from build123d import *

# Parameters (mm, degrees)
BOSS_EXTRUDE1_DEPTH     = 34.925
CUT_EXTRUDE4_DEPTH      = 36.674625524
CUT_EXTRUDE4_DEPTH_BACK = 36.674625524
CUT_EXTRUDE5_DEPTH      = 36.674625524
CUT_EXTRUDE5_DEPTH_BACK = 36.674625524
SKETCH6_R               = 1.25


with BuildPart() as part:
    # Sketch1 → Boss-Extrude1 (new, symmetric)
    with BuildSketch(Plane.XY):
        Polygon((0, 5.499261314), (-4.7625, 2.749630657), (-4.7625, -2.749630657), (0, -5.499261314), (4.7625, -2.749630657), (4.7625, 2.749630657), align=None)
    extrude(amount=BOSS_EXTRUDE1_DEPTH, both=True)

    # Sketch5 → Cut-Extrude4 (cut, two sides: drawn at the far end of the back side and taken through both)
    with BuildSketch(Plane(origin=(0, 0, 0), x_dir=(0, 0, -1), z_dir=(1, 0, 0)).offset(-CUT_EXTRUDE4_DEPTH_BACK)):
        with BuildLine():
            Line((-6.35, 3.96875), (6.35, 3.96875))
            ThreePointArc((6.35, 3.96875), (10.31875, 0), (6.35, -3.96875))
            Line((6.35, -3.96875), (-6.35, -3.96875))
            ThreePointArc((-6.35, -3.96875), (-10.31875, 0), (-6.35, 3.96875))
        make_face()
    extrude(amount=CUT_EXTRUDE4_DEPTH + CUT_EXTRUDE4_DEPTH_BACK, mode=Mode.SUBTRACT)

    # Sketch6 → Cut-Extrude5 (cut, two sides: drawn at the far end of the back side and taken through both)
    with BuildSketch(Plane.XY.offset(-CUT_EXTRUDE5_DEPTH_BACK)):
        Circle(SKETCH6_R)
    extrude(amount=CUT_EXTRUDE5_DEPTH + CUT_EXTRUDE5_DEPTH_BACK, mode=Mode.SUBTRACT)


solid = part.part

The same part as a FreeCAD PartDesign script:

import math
import FreeCAD as App
import Part
import Sketcher

V = App.Vector
Q = App.Units.Quantity


def add_polygon(sketch, points):
    """Adds a closed chain of lines whose ends are joined by coincident constraints."""
    first, n = sketch.GeometryCount, len(points)
    for a, b in zip(points, points[1:] + points[:1]):
        sketch.addGeometry(Part.LineSegment(App.Vector(*a, 0), App.Vector(*b, 0)), False)
    for i in range(n):
        sketch.addConstraint(Sketcher.Constraint("Coincident", first + i, 2, first + (i + 1) % n, 1))

doc = App.newDocument("Part")
body = doc.addObject("PartDesign::Body", "Body")

# Sketch on XY plane
sketch1 = body.newObject("Sketcher::SketchObject", "Sketch")
sketch1.AttachmentSupport = (doc.getObject("XY_Plane"), [""])
sketch1.MapMode = "FlatFace"
add_polygon(sketch1, [(0, 5), (-5, 3), (-5, -3), (0, -5), (5, -3), (5, 3)])  # lines 0-5
sketch1.addConstraint([
    Sketcher.Constraint("Vertical", 1),
    Sketcher.Constraint("Vertical", 4),
    Sketcher.Constraint("Symmetric", 0, 2, 3, 2, -1, 1),
    Sketcher.Constraint("Symmetric", 2, 2, 5, 2, -1, 1),
    Sketcher.Constraint("PointOnObject", 2, 2, -2),
    Sketcher.Constraint("Parallel", 2, 5),
    Sketcher.Constraint("Horizontal", 1, 2, 3, 2),
    Sketcher.Constraint("Angle", 0, Q("-150 deg")),
    Sketcher.Constraint("DistanceX", 0, 2, -1, 1, Q("0.1875 in")),
    Sketcher.Constraint("DistanceY", 1, 2, 1, 1, Q("5.499261 mm")),
])
pad1 = body.newObject("PartDesign::Pad", "Pad")
pad1.Profile = sketch1
pad1.Length = Q("2.75 in")
pad1.Midplane = True

# Sketch on YZ plane
sketch2 = body.newObject("Sketcher::SketchObject", "Sketch001")
sketch2.AttachmentSupport = (doc.getObject("YZ_Plane"), [""])
sketch2.MapMode = "FlatFace"
sketch2.addGeometry([
    Part.LineSegment(V(4, -6.3, 0), V(4, 6.3, 0)),
    Part.ArcOfCircle(Part.Circle(V(0, 6.3, 0), V(0, 0, 1), 4), math.radians(0), math.radians(180)),
    Part.LineSegment(V(-4, 6.3, 0), V(-4, -6.3, 0)),
    Part.ArcOfCircle(Part.Circle(V(0, -6.3, 0), V(0, 0, 1), 4), math.radians(180), math.radians(360)),
], False)
sketch2.addConstraint([
    Sketcher.Constraint("Tangent", 0, 2, 1, 1),
    Sketcher.Constraint("Tangent", 1, 2, 2, 1),
    Sketcher.Constraint("Tangent", 2, 2, 3, 1),
    Sketcher.Constraint("Tangent", 3, 2, 0, 1),
    Sketcher.Constraint("Vertical", 0),
    Sketcher.Constraint("Vertical", 2),
    Sketcher.Constraint("Symmetric", 1, 3, 3, 3, -1, 1),
    Sketcher.Constraint("DistanceY", 0, 1, 0, 2, Q("0.5 in")),
    Sketcher.Constraint("Radius", 1, Q("0.15625 in")),
])
pocket1 = body.newObject("PartDesign::Pocket", "Pocket")
pocket1.Profile = sketch2
pocket1.Type = "ThroughAll"
pocket1.Midplane = True

# Sketch on XY plane
sketch3 = body.newObject("Sketcher::SketchObject", "Sketch002")
sketch3.AttachmentSupport = (doc.getObject("XY_Plane"), [""])
sketch3.MapMode = "FlatFace"
sketch3.addGeometry(Part.Circle(V(0, 0, 0), V(0, 0, 1), 1.2), False)
sketch3.addConstraint([
    Sketcher.Constraint("Coincident", 0, 3, -1, 1),
    Sketcher.Constraint("Diameter", 0, Q("2.5 mm")),
])
pocket2 = body.newObject("PartDesign::Pocket", "Pocket001")
pocket2.Profile = sketch3
pocket2.Type = "ThroughAll"
pocket2.Midplane = True

doc.recompute()
